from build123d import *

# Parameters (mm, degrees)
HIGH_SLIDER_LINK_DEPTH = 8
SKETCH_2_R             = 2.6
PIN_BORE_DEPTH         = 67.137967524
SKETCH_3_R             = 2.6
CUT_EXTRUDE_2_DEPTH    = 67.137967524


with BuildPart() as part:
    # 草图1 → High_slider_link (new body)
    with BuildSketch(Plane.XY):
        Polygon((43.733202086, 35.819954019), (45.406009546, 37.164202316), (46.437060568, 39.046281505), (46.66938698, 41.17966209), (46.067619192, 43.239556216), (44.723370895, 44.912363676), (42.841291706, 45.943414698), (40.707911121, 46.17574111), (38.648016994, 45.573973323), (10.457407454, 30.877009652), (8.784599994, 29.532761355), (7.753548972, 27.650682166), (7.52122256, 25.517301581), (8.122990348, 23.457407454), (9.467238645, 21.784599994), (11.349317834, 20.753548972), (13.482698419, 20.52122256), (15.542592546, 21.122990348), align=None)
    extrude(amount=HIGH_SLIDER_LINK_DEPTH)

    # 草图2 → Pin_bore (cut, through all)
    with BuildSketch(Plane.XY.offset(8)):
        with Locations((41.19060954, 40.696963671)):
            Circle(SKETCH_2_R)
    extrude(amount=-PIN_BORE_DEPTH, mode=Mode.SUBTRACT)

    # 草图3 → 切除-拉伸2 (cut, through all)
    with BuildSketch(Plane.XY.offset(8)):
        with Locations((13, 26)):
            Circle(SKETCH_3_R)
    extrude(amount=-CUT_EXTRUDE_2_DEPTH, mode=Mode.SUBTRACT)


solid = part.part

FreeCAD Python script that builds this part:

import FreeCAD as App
import Part
import Sketcher
Q = App.Units.Quantity

doc = App.newDocument("Part")
params = doc.addObject("Spreadsheet::Sheet", "Params")
for row, (alias, value) in enumerate([
    ("pad1_length", "8 mm"),
    ("sketch2_diameter", "5.2 mm"),
    ("sketch3_diameter", "5.2 mm"),
], start=1):
    params.set(f"A{row}", alias)
    params.set(f"B{row}", "=" + value)
    params.setAlias(f"B{row}", alias)

body = doc.addObject("PartDesign::Body", "Body")

sketch1 = body.newObject("Sketcher::SketchObject", "Sketch")
sketch1.AttachmentSupport = (doc.getObject("XY_Plane"), [""])
sketch1.MapMode = "FlatFace"
sketch1.addGeometry(Part.LineSegment(App.Vector(43.7, 35.8, 0), App.Vector(45.4, 37.2, 0)), False)
sketch1.addGeometry(Part.LineSegment(App.Vector(45.4, 37.2, 0), App.Vector(46.4, 39, 0)), False)
sketch1.addGeometry(Part.LineSegment(App.Vector(46.4, 39, 0), App.Vector(46.7, 41.2, 0)), False)
sketch1.addGeometry(Part.LineSegment(App.Vector(46.7, 41.2, 0), App.Vector(46.1, 43.2, 0)), False)
sketch1.addGeometry(Part.LineSegment(App.Vector(46.1, 43.2, 0), App.Vector(44.7, 44.9, 0)), False)
sketch1.addGeometry(Part.LineSegment(App.Vector(44.7, 44.9, 0), App.Vector(42.8, 45.9, 0)), False)
sketch1.addGeometry(Part.LineSegment(App.Vector(42.8, 45.9, 0), App.Vector(40.7, 46.2, 0)), False)
sketch1.addGeometry(Part.LineSegment(App.Vector(40.7, 46.2, 0), App.Vector(38.6, 45.6, 0)), False)
sketch1.addGeometry(Part.LineSegment(App.Vector(38.6, 45.6, 0), App.Vector(10.5, 30.9, 0)), False)
sketch1.addGeometry(Part.LineSegment(App.Vector(10.5, 30.9, 0), App.Vector(8.8, 29.5, 0)), False)
sketch1.addGeometry(Part.LineSegment(App.Vector(8.8, 29.5, 0), App.Vector(7.8, 27.7, 0)), False)
sketch1.addGeometry(Part.LineSegment(App.Vector(7.8, 27.7, 0), App.Vector(7.5, 25.5, 0)), False)
sketch1.addGeometry(Part.LineSegment(App.Vector(7.5, 25.5, 0), App.Vector(8.1, 23.5, 0)), False)
sketch1.addGeometry(Part.LineSegment(App.Vector(8.1, 23.5, 0), App.Vector(9.5, 21.8, 0)), False)
sketch1.addGeometry(Part.LineSegment(App.Vector(9.5, 21.8, 0), App.Vector(11.3, 20.8, 0)), False)
sketch1.addGeometry(Part.LineSegment(App.Vector(11.3, 20.8, 0), App.Vector(13.5, 20.5, 0)), False)
sketch1.addGeometry(Part.LineSegment(App.Vector(13.5, 20.5, 0), App.Vector(15.5, 21.1, 0)), False)
sketch1.addGeometry(Part.LineSegment(App.Vector(15.5, 21.1, 0), App.Vector(43.7, 35.8, 0)), False)
sketch1.addConstraint(Sketcher.Constraint("Coincident", 0, 2, 1, 1))
sketch1.addConstraint(Sketcher.Constraint("Coincident", 1, 2, 2, 1))
sketch1.addConstraint(Sketcher.Constraint("Coincident", 2, 2, 3, 1))
sketch1.addConstraint(Sketcher.Constraint("Coincident", 3, 2, 4, 1))
sketch1.addConstraint(Sketcher.Constraint("Coincident", 4, 2, 5, 1))
sketch1.addConstraint(Sketcher.Constraint("Coincident", 5, 2, 6, 1))
sketch1.addConstraint(Sketcher.Constraint("Coincident", 6, 2, 7, 1))
sketch1.addConstraint(Sketcher.Constraint("Coincident", 7, 2, 8, 1))
sketch1.addConstraint(Sketcher.Constraint("Coincident", 8, 2, 9, 1))
sketch1.addConstraint(Sketcher.Constraint("Coincident", 9, 2, 10, 1))
sketch1.addConstraint(Sketcher.Constraint("Coincident", 10, 2, 11, 1))
sketch1.addConstraint(Sketcher.Constraint("Coincident", 11, 2, 12, 1))
sketch1.addConstraint(Sketcher.Constraint("Coincident", 12, 2, 13, 1))
sketch1.addConstraint(Sketcher.Constraint("Coincident", 13, 2, 14, 1))
sketch1.addConstraint(Sketcher.Constraint("Coincident", 14, 2, 15, 1))
sketch1.addConstraint(Sketcher.Constraint("Coincident", 15, 2, 16, 1))
sketch1.addConstraint(Sketcher.Constraint("Coincident", 16, 2, 17, 1))
sketch1.addConstraint(Sketcher.Constraint("Coincident", 17, 2, 0, 1))
sketch1.addConstraint(Sketcher.Constraint("Perpendicular", 0, 4))
sketch1.addConstraint(Sketcher.Constraint("Perpendicular", 1, 5))
sketch1.addConstraint(Sketcher.Constraint("Perpendicular", 2, 6))
sketch1.addConstraint(Sketcher.Constraint("Perpendicular", 3, 7))
sketch1.addConstraint(Sketcher.Constraint("Perpendicular", 4, 9))
sketch1.addConstraint(Sketcher.Constraint("Perpendicular", 5, 10))
sketch1.addConstraint(Sketcher.Constraint("Perpendicular", 6, 11))
sketch1.addConstraint(Sketcher.Constraint("Perpendicular", 7, 12))
sketch1.addConstraint(Sketcher.Constraint("Perpendicular", 9, 13))
sketch1.addConstraint(Sketcher.Constraint("Perpendicular", 10, 14))
sketch1.addConstraint(Sketcher.Constraint("Perpendicular", 11, 15))
sketch1.addConstraint(Sketcher.Constraint("Perpendicular", 12, 16))
sketch1.addConstraint(Sketcher.Constraint("Parallel", 8, 17))
sketch1.addConstraint(Sketcher.Constraint("Equal", 0, 1))
sketch1.addConstraint(Sketcher.Constraint("Equal", 1, 2))
sketch1.addConstraint(Sketcher.Constraint("Equal", 2, 3))
sketch1.addConstraint(Sketcher.Constraint("Equal", 3, 4))
sketch1.addConstraint(Sketcher.Constraint("Equal", 4, 5))
sketch1.addConstraint(Sketcher.Constraint("Equal", 5, 6))
sketch1.addConstraint(Sketcher.Constraint("Equal", 6, 7))
sketch1.addConstraint(Sketcher.Constraint("Equal", 7, 9))
sketch1.addConstraint(Sketcher.Constraint("Equal", 9, 10))
sketch1.addConstraint(Sketcher.Constraint("Equal", 10, 11))
sketch1.addConstraint(Sketcher.Constraint("Equal", 11, 12))
sketch1.addConstraint(Sketcher.Constraint("Equal", 12, 13))
sketch1.addConstraint(Sketcher.Constraint("Equal", 13, 14))
sketch1.addConstraint(Sketcher.Constraint("Equal", 14, 15))
sketch1.addConstraint(Sketcher.Constraint("DistanceX", -1, 1, 9, 2, Q("8.7846 mm")))
sketch1.addConstraint(Sketcher.Constraint("DistanceY", -1, 1, 11, 2, Q("25.517302 mm")))
sketch1.addConstraint(Sketcher.Constraint("DistanceY", -1, 1, 13, 2, Q("21.7846 mm")))
sketch1.addConstraint(Sketcher.Constraint("DistanceX", -1, 1, 15, 2, Q("13.482698 mm")))
sketch1.addConstraint(Sketcher.Constraint("DistanceX", -1, 1, 0, 2, Q("45.40601 mm")))
sketch1.addConstraint(Sketcher.Constraint("DistanceX", -1, 1, 1, 2, Q("46.437061 mm")))
sketch1.addConstraint(Sketcher.Constraint("DistanceY", -1, 1, 1, 2, Q("39.046282 mm")))
sketch1.addConstraint(Sketcher.Constraint("DistanceX", -1, 1, 3, 2, Q("46.067619 mm")))
sketch1.addConstraint(Sketcher.Constraint("DistanceX", -1, 1, 4, 2, Q("44.723371 mm")))
pad1 = body.newObject("PartDesign::Pad", "Pad")
pad1.Profile = sketch1
pad1.setExpression("Length", "Params.pad1_length")

sketch2 = body.newObject("Sketcher::SketchObject", "Sketch001")
sketch2.AttachmentSupport = (doc.getObject("XY_Plane"), [""])
sketch2.MapMode = "FlatFace"
sketch2.AttachmentOffset = App.Placement(App.Vector(0, 0, 8), App.Rotation())
sketch2.addGeometry(Part.Circle(App.Vector(41.2, 40.7, 0), App.Vector(0, 0, 1), 2.6), False)
sketch2.addConstraint(Sketcher.Constraint("Diameter", 0, Q("5.2 mm")))
sketch2.addConstraint(Sketcher.Constraint("DistanceX", -1, 1, 0, 3, Q("41.19061 mm")))
sketch2.addConstraint(Sketcher.Constraint("DistanceY", -1, 1, 0, 3, Q("40.696964 mm")))
sketch2.setExpression("Constraints[0]", "Params.sketch2_diameter")
pocket1 = body.newObject("PartDesign::Pocket", "Pocket")
pocket1.Profile = sketch2
pocket1.Type = "ThroughAll"

sketch3 = body.newObject("Sketcher::SketchObject", "Sketch002")
sketch3.AttachmentSupport = (doc.getObject("XY_Plane"), [""])
sketch3.MapMode = "FlatFace"
sketch3.AttachmentOffset = App.Placement(App.Vector(0, 0, 8), App.Rotation())
sketch3.addGeometry(Part.Circle(App.Vector(13, 26, 0), App.Vector(0, 0, 1), 2.6), False)
sketch3.addConstraint(Sketcher.Constraint("Diameter", 0, Q("5.2 mm")))
sketch3.addConstraint(Sketcher.Constraint("DistanceX", -1, 1, 0, 3, Q("13 mm")))
sketch3.addConstraint(Sketcher.Constraint("DistanceY", -1, 1, 0, 3, Q("26 mm")))
sketch3.setExpression("Constraints[0]", "Params.sketch3_diameter")
pocket2 = body.newObject("PartDesign::Pocket", "Pocket001")
pocket2.Profile = sketch3
pocket2.Type = "ThroughAll"

doc.recompute()
